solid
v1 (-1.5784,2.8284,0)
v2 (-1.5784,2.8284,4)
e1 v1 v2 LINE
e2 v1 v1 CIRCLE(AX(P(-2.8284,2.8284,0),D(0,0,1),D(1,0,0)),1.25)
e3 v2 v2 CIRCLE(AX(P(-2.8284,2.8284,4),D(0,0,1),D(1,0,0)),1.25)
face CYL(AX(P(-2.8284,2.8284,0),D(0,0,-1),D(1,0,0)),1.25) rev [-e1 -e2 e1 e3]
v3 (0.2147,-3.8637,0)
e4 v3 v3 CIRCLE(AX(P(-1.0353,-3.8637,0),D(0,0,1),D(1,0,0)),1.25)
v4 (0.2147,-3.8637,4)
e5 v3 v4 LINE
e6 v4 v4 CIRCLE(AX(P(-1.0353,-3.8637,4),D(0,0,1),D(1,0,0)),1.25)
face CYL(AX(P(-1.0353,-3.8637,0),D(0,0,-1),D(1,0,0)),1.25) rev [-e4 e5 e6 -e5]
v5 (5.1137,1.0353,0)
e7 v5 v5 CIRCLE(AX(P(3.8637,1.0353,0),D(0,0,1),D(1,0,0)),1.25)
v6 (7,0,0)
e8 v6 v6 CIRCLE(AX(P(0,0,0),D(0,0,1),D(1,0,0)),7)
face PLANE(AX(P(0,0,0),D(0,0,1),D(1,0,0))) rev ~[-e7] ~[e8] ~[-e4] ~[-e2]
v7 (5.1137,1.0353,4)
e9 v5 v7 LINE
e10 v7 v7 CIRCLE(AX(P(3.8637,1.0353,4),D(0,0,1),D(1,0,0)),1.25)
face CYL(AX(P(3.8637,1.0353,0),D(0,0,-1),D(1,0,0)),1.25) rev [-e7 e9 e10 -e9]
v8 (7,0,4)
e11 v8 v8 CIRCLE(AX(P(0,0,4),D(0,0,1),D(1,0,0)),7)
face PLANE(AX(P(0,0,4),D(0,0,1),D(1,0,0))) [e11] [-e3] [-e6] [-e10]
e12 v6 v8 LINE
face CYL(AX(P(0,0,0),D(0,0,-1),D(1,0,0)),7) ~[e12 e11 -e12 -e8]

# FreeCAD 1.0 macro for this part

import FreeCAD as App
import Part
import Sketcher

V = App.Vector

doc = App.newDocument("Part")
body = doc.addObject("PartDesign::Body", "Body")

sketch1 = body.newObject("Sketcher::SketchObject", "Sketch")
sketch1.AttachmentSupport = (doc.getObject("XY_Plane"), [""])
sketch1.MapMode = "FlatFace"
sketch1.addGeometry([
    Part.Circle(V(0, 0, 0), V(0, 0, 1), 7),
    Part.Circle(V(-1, -3.9, 0), V(0, 0, 1), 1.2),
    Part.Circle(V(-2.8, 2.8, 0), V(0, 0, 1), 1.2),
    Part.Circle(V(3.9, 1, 0), V(0, 0, 1), 1.2),
], False)
sketch1.addConstraint([
    Sketcher.Constraint("Coincident", 0, 3, -1, 1),
    Sketcher.Constraint("Equal", 1, 2),
    Sketcher.Constraint("Equal", 2, 3),
    Sketcher.Constraint("Diameter", 0, 14.0),
    Sketcher.Constraint("Diameter", 1, 2.5),
    Sketcher.Constraint("DistanceX", 2, 3, 1, 3, 1.793),
    Sketcher.Constraint("DistanceY", 1, 3, 2, 3, 6.692),
    Sketcher.Constraint("DistanceX", 2, 3, 3, 3, 6.692),
    Sketcher.Constraint("DistanceY", 3, 3, 2, 3, 1.793),
    Sketcher.Constraint("DistanceX", 1, 3, -1, 1, 1.0353),
    Sketcher.Constraint("DistanceY", 1, 3, -1, 1, 3.8637),
])
pad1 = body.newObject("PartDesign::Pad", "Pad")
pad1.Profile = sketch1
pad1.Length = 4

doc.recompute()
